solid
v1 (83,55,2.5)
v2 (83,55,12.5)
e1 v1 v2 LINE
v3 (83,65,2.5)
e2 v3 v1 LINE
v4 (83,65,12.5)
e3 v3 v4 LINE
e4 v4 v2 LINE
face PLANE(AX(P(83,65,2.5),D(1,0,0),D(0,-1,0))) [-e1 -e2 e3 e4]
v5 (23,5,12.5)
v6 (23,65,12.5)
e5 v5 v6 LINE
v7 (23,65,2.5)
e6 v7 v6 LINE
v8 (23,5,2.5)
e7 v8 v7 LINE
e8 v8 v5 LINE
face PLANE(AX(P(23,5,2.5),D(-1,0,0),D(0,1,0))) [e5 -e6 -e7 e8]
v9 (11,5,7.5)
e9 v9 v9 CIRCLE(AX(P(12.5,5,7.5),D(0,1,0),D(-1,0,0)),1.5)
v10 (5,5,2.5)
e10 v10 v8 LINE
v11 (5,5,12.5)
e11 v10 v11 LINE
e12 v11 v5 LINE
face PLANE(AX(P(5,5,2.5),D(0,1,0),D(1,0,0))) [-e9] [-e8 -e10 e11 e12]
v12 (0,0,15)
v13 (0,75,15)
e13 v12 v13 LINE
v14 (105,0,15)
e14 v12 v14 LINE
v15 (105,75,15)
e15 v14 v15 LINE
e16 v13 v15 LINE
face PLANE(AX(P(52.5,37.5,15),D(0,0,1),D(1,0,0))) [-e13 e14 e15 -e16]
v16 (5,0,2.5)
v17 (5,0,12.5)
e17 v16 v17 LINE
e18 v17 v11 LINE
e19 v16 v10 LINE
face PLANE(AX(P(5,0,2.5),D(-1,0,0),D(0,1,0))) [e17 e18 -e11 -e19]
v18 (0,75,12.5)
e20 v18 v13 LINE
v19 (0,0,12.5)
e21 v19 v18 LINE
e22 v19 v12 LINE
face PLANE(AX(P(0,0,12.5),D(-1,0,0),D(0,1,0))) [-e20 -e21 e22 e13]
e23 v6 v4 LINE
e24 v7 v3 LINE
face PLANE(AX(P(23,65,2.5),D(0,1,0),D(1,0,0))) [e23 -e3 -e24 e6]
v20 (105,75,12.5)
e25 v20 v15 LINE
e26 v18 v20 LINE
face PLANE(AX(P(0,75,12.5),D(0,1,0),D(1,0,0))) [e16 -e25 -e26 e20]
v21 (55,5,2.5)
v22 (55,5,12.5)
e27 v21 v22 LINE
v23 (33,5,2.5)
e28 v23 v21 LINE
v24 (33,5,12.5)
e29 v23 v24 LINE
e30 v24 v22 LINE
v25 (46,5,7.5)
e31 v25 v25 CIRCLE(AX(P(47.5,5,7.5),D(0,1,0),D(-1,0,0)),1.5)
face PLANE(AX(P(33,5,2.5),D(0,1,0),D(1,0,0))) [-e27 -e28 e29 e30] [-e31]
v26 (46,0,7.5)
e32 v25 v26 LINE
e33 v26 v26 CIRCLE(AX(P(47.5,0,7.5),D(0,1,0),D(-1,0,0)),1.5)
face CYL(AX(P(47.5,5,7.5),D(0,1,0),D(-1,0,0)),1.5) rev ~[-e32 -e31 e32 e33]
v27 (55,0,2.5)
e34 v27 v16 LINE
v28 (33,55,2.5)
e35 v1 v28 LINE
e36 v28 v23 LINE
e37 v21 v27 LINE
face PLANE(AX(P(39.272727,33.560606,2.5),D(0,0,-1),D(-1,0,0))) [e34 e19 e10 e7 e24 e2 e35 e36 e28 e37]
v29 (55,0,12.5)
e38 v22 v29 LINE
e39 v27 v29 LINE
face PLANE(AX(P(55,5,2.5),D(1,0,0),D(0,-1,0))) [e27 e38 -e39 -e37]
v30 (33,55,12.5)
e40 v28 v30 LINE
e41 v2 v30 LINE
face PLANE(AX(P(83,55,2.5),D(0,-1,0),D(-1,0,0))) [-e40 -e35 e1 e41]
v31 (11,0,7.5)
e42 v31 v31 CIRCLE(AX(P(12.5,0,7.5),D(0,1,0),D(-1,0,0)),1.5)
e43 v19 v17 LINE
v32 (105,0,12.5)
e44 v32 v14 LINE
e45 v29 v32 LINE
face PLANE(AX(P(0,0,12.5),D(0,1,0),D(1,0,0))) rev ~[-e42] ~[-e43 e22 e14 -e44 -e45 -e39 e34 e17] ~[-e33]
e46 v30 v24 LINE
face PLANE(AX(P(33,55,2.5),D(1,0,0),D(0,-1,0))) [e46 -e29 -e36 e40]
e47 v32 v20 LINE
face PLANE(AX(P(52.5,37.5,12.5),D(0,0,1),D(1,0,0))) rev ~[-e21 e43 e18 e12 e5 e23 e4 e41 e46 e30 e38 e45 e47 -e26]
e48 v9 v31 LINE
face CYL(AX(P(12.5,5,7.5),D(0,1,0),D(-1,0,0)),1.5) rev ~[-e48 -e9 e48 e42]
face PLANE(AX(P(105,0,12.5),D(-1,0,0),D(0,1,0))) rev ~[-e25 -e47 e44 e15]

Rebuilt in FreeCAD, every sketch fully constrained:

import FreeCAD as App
import Part
import Sketcher

V = App.Vector
Q = App.Units.Quantity


def add_polygon(sketch, points):
    """Adds a closed chain of lines whose ends are joined by coincident constraints."""
    first, n = sketch.GeometryCount, len(points)
    for a, b in zip(points, points[1:] + points[:1]):
        sketch.addGeometry(Part.LineSegment(App.Vector(*a, 0), App.Vector(*b, 0)), False)
    for i in range(n):
        sketch.addConstraint(Sketcher.Constraint("Coincident", first + i, 2, first + (i + 1) % n, 1))

doc = App.newDocument("Part")
params = doc.addObject("Spreadsheet::Sheet", "Params")
for row, (alias, value) in enumerate([
    ("sketch1_width", "50 mm"),
    ("sketch1_width2", "22 mm"),
    ("sketch1_width3", "60 mm"),
    ("sketch1_height", "5 mm"),
    ("pad1_length", "10 mm"),
    ("sketch2_diameter", "3 mm"),
    ("sketch3_width", "105 mm"),
    ("sketch3_height", "75 mm"),
    ("pad2_length", "2.5 mm"),
], start=1):
    params.set(f"A{row}", alias)
    params.set(f"B{row}", "=" + value)
    params.setAlias(f"B{row}", alias)

body = doc.addObject("PartDesign::Body", "Body")

# Sketch on XY plane
sketch1 = doc.addObject("Sketcher::SketchObject", "Sketch")
body.addObject(sketch1)
sketch1.AttachmentSupport = (doc.XY_Plane, [""])
sketch1.MapMode = "FlatFace"
sketch1.AttachmentOffset = App.Placement(V(0, 0, 2.5), App.Rotation())
add_polygon(sketch1, [(5, 5), (5, 0), (55, 0), (55, 5), (33, 5), (33, 55), (83, 55), (83, 65), (23, 65), (23, 5)])  # lines 0-9
sketch1.addConstraint([
    Sketcher.Constraint("Vertical", 0),
    Sketcher.Constraint("Horizontal", 1),
    Sketcher.Constraint("Vertical", 2),
    Sketcher.Constraint("Horizontal", 3),
    Sketcher.Constraint("Vertical", 4),
    Sketcher.Constraint("Horizontal", 5),
    Sketcher.Constraint("Vertical", 6),
    Sketcher.Constraint("Horizontal", 7),
    Sketcher.Constraint("Vertical", 8),
    Sketcher.Constraint("Horizontal", 9),
    Sketcher.Constraint("PointOnObject", 0, 2, -1),
    Sketcher.Constraint("Horizontal", 3, 2, 8, 2),
    Sketcher.Constraint("Equal", 1, 5),
    Sketcher.Constraint("Equal", 5, 4),
    Sketcher.Constraint("Equal", 7, 8),
    Sketcher.Constraint("DistanceX", 1, 1, 1, 2, Q("50 mm")),
    Sketcher.Constraint("DistanceX", 3, 2, 3, 1, Q("22 mm")),
    Sketcher.Constraint("DistanceX", 7, 2, 7, 1, Q("60 mm")),
    Sketcher.Constraint("DistanceY", 0, 2, 0, 1, Q("5 mm")),
    Sketcher.Constraint("DistanceX", -1, 1, 0, 2, Q("5 mm")),
])
sketch1.setExpression("Constraints[25]", "Params.sketch1_width")
sketch1.setExpression("Constraints[26]", "Params.sketch1_width2")
sketch1.setExpression("Constraints[27]", "Params.sketch1_width3")
sketch1.setExpression("Constraints[28]", "Params.sketch1_height")
pad1 = doc.addObject("PartDesign::Pad", "Pad")
body.addObject(pad1)
pad1.Profile = sketch1
pad1.setExpression("Length", "Params.pad1_length")

# Sketch on XZ plane
sketch2 = doc.addObject("Sketcher::SketchObject", "Sketch001")
body.addObject(sketch2)
sketch2.AttachmentSupport = (doc.XZ_Plane, [""])
sketch2.MapMode = "FlatFace"
sketch2.AttachmentOffset = App.Placement(V(0, 0, -5), App.Rotation())
sketch2.addGeometry([
    Part.Circle(V(12.5, 7.5, 0), V(0, 0, 1), 1.5),
    Part.Circle(V(47.5, 7.5, 0), V(0, 0, 1), 1.5),
], False)
sketch2.addConstraint([
    Sketcher.Constraint("Equal", 0, 1),
    Sketcher.Constraint("Horizontal", 0, 3, 1, 3),
    Sketcher.Constraint("Diameter", 0, Q("3 mm")),
    Sketcher.Constraint("DistanceX", 0, 3, 1, 3, Q("35 mm")),
    Sketcher.Constraint("DistanceX", -1, 1, 0, 3, Q("12.5 mm")),
    Sketcher.Constraint("DistanceY", -1, 1, 0, 3, Q("7.5 mm")),
])
sketch2.setExpression("Constraints[2]", "Params.sketch2_diameter")
pocket1 = doc.addObject("PartDesign::Pocket", "Pocket")
body.addObject(pocket1)
pocket1.Profile = sketch2
pocket1.Type = "ThroughAll"
pocket1.Reversed = True

# Sketch on XY plane
sketch3 = doc.addObject("Sketcher::SketchObject", "Sketch002")
body.addObject(sketch3)
sketch3.AttachmentSupport = (doc.XY_Plane, [""])
sketch3.MapMode = "FlatFace"
sketch3.AttachmentOffset = App.Placement(V(0, 0, 12.5), App.Rotation())
add_polygon(sketch3, [(0, 75), (0, 0), (105, 0), (105, 75)])  # lines 0-3
sketch3.addConstraint([
    Sketcher.Constraint("Vertical", 0),
    Sketcher.Constraint("Horizontal", 1),
    Sketcher.Constraint("Vertical", 2),
    Sketcher.Constraint("Horizontal", 3),
    Sketcher.Constraint("Coincident", 0, 2, -1, 1),
    Sketcher.Constraint("DistanceX", 1, 1, 1, 2, Q("105 mm")),
    Sketcher.Constraint("DistanceY", 0, 2, 0, 1, Q("75 mm")),
])
sketch3.setExpression("Constraints[9]", "Params.sketch3_width")
sketch3.setExpression("Constraints[10]", "Params.sketch3_height")
pad2 = doc.addObject("PartDesign::Pad", "Pad001")
body.addObject(pad2)
pad2.Profile = sketch3
pad2.setExpression("Length", "Params.pad2_length")

doc.recompute()
